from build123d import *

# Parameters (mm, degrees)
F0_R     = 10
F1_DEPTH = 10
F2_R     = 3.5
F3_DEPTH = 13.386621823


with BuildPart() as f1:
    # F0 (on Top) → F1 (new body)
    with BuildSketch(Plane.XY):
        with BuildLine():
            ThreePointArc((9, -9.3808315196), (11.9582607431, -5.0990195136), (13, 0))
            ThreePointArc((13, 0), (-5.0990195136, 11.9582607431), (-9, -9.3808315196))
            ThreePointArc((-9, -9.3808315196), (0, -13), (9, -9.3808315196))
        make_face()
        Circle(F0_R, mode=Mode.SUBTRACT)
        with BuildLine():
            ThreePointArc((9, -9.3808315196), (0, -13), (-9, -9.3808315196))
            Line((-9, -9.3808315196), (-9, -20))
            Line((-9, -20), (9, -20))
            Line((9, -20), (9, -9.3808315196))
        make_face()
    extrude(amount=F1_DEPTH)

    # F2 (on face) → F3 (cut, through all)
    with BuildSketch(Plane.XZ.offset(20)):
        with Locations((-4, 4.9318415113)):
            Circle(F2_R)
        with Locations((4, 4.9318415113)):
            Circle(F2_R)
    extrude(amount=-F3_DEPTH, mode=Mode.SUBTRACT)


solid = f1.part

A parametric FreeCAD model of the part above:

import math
import FreeCAD as App
import Part
import Sketcher
Q = App.Units.Quantity

doc = App.newDocument("Part")
body = doc.addObject("PartDesign::Body", "Body")

# Sketch on XY plane
sketch1 = doc.addObject("Sketcher::SketchObject", "Sketch")
body.addObject(sketch1)
sketch1.AttachmentSupport = (doc.XY_Plane, [""])
sketch1.MapMode = "FlatFace"
sketch1.addGeometry([
    Part.ArcOfCircle(Part.Circle(App.Vector(0, 0, 0), App.Vector(0, 0, 1), 13), math.radians(-46), math.radians(0)),  # 0
    Part.ArcOfCircle(Part.Circle(App.Vector(0, 0, 0), App.Vector(0, 0, 1), 13), math.radians(0), math.radians(226)),  # 1
    Part.LineSegment(App.Vector(-9, -9, 0), App.Vector(-9, -20, 0)),  # 2
    Part.LineSegment(App.Vector(-9, -20, 0), App.Vector(9, -20, 0)),  # 3
    Part.LineSegment(App.Vector(9, -20, 0), App.Vector(9, -9, 0)),  # 4
    Part.Circle(App.Vector(0, 0, 0), App.Vector(0, 0, 1), 10),  # 5
], False)
sketch1.addConstraint([
    Sketcher.Constraint("Tangent", 0, 2, 1, 1),
    Sketcher.Constraint("Coincident", 1, 2, 2, 1),
    Sketcher.Constraint("Coincident", 2, 2, 3, 1),
    Sketcher.Constraint("Coincident", 3, 2, 4, 1),
    Sketcher.Constraint("Coincident", 4, 2, 0, 1),
    Sketcher.Constraint("Vertical", 2),
    Sketcher.Constraint("Horizontal", 3),
    Sketcher.Constraint("Vertical", 4),
    Sketcher.Constraint("Coincident", 0, 3, -1, 1),
    Sketcher.Constraint("Coincident", 5, 3, -1, 1),
    Sketcher.Constraint("Equal", 0, 1),
    Sketcher.Constraint("PointOnObject", 0, 2, -1),
    Sketcher.Constraint("Horizontal", 1, 2, 4, 2),
    Sketcher.Constraint("Diameter", 5, Q("20 mm")),
    Sketcher.Constraint("Radius", 0, Q("13 mm")),
    Sketcher.Constraint("DistanceX", 3, 1, 3, 2, Q("18 mm")),
    Sketcher.Constraint("DistanceY", 2, 2, -1, 1, Q("20 mm")),
])
pad1 = doc.addObject("PartDesign::Pad", "Pad")
body.addObject(pad1)
pad1.Profile = sketch1
pad1.Length = 10

# Sketch on XZ plane
sketch2 = doc.addObject("Sketcher::SketchObject", "Sketch001")
body.addObject(sketch2)
sketch2.AttachmentSupport = (doc.XZ_Plane, [""])
sketch2.MapMode = "FlatFace"
sketch2.AttachmentOffset = App.Placement(App.Vector(0, 0, 20), App.Rotation())
sketch2.addGeometry([
    Part.Circle(App.Vector(-4, 4.9, 0), App.Vector(0, 0, 1), 3.5),
    Part.Circle(App.Vector(4, 4.9, 0), App.Vector(0, 0, 1), 3.5),
], False)
sketch2.addConstraint([
    Sketcher.Constraint("Equal", 0, 1),
    Sketcher.Constraint("Symmetric", 0, 3, 1, 3, -2),
    Sketcher.Constraint("Diameter", 0, Q("7 mm")),
    Sketcher.Constraint("DistanceX", 0, 3, -1, 1, Q("4 mm")),
    Sketcher.Constraint("DistanceY", -1, 1, 0, 3, Q("4.931842 mm")),
])
pocket1 = doc.addObject("PartDesign::Pocket", "Pocket")
body.addObject(pocket1)
pocket1.Profile = sketch2
pocket1.Length = 13.386622

doc.recompute()
